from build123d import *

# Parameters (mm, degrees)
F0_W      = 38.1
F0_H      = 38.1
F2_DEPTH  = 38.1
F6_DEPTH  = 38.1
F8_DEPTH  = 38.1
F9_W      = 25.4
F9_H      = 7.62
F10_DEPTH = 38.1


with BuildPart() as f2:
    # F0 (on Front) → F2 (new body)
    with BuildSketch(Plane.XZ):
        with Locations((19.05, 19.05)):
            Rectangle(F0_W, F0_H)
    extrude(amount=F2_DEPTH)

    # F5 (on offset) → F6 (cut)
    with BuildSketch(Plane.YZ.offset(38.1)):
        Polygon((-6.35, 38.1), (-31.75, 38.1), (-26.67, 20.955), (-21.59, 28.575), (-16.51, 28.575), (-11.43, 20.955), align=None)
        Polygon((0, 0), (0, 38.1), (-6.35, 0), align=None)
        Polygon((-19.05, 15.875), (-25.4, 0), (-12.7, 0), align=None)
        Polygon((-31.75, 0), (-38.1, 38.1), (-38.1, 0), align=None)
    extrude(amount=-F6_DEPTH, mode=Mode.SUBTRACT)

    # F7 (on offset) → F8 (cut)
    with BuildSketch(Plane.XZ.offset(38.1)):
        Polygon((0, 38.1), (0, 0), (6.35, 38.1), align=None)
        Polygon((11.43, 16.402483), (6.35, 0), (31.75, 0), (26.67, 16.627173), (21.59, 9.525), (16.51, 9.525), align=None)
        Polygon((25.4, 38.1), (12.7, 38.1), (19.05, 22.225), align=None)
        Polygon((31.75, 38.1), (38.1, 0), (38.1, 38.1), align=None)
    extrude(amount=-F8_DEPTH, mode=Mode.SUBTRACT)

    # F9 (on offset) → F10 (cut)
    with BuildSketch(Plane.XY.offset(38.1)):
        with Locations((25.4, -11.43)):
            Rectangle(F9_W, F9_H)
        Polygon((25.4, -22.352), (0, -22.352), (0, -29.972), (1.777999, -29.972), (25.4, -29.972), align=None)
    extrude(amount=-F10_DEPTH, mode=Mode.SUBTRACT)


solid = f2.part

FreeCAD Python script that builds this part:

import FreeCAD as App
import Part
import Sketcher
from FreeCAD import Vector
Q = App.Units.Quantity


def add_polygon(sketch, points):
    """Adds a closed chain of lines whose ends are joined by coincident constraints."""
    first, n = sketch.GeometryCount, len(points)
    for a, b in zip(points, points[1:] + points[:1]):
        sketch.addGeometry(Part.LineSegment(App.Vector(*a, 0), App.Vector(*b, 0)), False)
    for i in range(n):
        sketch.addConstraint(Sketcher.Constraint("Coincident", first + i, 2, first + (i + 1) % n, 1))

doc = App.newDocument("Part")
body = doc.addObject("PartDesign::Body", "Body")

sketch1 = body.newObject("Sketcher::SketchObject", "Sketch")
sketch1.AttachmentSupport = (doc.getObject("XZ_Plane"), [""])
sketch1.MapMode = "FlatFace"
add_polygon(sketch1, [(0, 38), (0, 0), (38, 0), (38, 38)])
sketch1.addConstraint([
    Sketcher.Constraint("Vertical", 0),
    Sketcher.Constraint("Horizontal", 1),
    Sketcher.Constraint("Vertical", 2),
    Sketcher.Constraint("Horizontal", 3),
    Sketcher.Constraint("Coincident", 0, 2, -1, 1),
    Sketcher.Constraint("Equal", 3, 0),
    Sketcher.Constraint("DistanceX", 1, 1, 1, 2, Q("1.5 in")),
])
pad1 = body.newObject("PartDesign::Pad", "Pad")
pad1.Profile = sketch1
pad1.Length = Q("1.5 in")

sketch2 = body.newObject("Sketcher::SketchObject", "Sketch001")
sketch2.AttachmentSupport = (doc.getObject("YZ_Plane"), [""])
sketch2.MapMode = "FlatFace"
sketch2.AttachmentOffset = App.Placement(Vector(0, 0, 1.5 * 25.4), App.Rotation())
add_polygon(sketch2, [(-6, 38), (-32, 38), (-27, 21), (-22, 29), (-17, 29), (-11, 21)])
add_polygon(sketch2, [(0, 0), (0, 38), (-6, 0)])
add_polygon(sketch2, [(-19, 16), (-25, 0), (-13, 0)])
add_polygon(sketch2, [(-32, 0), (-38, 38), (-38, 0)])
sketch2.addConstraint([
    Sketcher.Constraint("Horizontal", 0),
    Sketcher.Constraint("Horizontal", 3),
    Sketcher.Constraint("Vertical", 6),
    Sketcher.Constraint("Horizontal", 8),
    Sketcher.Constraint("Horizontal", 10),
    Sketcher.Constraint("Vertical", 13),
    Sketcher.Constraint("Horizontal", 14),
    Sketcher.Constraint("Coincident", 8, 2, -1, 1),
    Sketcher.Constraint("PointOnObject", 9, 2, -1),
    Sketcher.Constraint("PointOnObject", 13, 2, -1),
    Sketcher.Constraint("Horizontal", 1, 2, 4, 2),
    Sketcher.Constraint("Horizontal", 5, 2, 6, 2),
    Sketcher.Constraint("Horizontal", 6, 2, 12, 2),
    Sketcher.Constraint("Vertical", 5, 2, 7, 2),
    Sketcher.Constraint("Vertical", 0, 2, 14, 2),
    Sketcher.Constraint("Equal", 8, 14),
    Sketcher.Constraint("Equal", 2, 4),
    Sketcher.Constraint("Equal", 1, 5),
    Sketcher.Constraint("Equal", 9, 11),
    Sketcher.Constraint("DistanceX", 0, 2, 0, 1, Q("1 in")),
    Sketcher.Constraint("DistanceX", 3, 1, 3, 2, Q("0.2 in")),
    Sketcher.Constraint("DistanceX", 10, 1, 10, 2, Q("0.5 in")),
    Sketcher.Constraint("DistanceY", 6, 1, 6, 2, Q("1.5 in")),
    Sketcher.Constraint("DistanceX", 9, 2, -1, 1, Q("1 in")),
    Sketcher.Constraint("DistanceX", 13, 2, 10, 2, Q("1 in")),
    Sketcher.Constraint("DistanceX", 0, 2, 1, 2, Q("0.2 in")),
    Sketcher.Constraint("DistanceY", 1, 2, 2, 2, Q("0.3 in")),
    Sketcher.Constraint("DistanceY", 11, 2, 1, 2, Q("0.2 in")),
    Sketcher.Constraint("DistanceY", -1, 1, 1, 2, Q("0.825 in")),
])
pocket1 = body.newObject("PartDesign::Pocket", "Pocket")
pocket1.Profile = sketch2
pocket1.Length = Q("1.5 in")

sketch3 = body.newObject("Sketcher::SketchObject", "Sketch002")
sketch3.AttachmentSupport = (doc.getObject("XZ_Plane"), [""])
sketch3.MapMode = "FlatFace"
sketch3.AttachmentOffset = App.Placement(Vector(0, 0, 1.5 * 25.4), App.Rotation())
add_polygon(sketch3, [(0, 38), (0, 0), (6, 38)])
add_polygon(sketch3, [(11, 16), (6, 0), (32, 0), (27, 17), (22, 10), (17, 10)])
add_polygon(sketch3, [(25, 38), (13, 38), (19, 22)])
add_polygon(sketch3, [(32, 38), (38, 0), (38, 38)])
sketch3.addConstraint([
    Sketcher.Constraint("Vertical", 0),
    Sketcher.Constraint("Horizontal", 2),
    Sketcher.Constraint("Horizontal", 4),
    Sketcher.Constraint("Horizontal", 7),
    Sketcher.Constraint("Horizontal", 9),
    Sketcher.Constraint("Vertical", 13),
    Sketcher.Constraint("Horizontal", 14),
    Sketcher.Constraint("Coincident", 0, 2, -1, 1),
    Sketcher.Constraint("PointOnObject", 3, 2, -1),
    Sketcher.Constraint("PointOnObject", 12, 2, -1),
    Sketcher.Constraint("Horizontal", 2, 2, 9, 2),
    Sketcher.Constraint("Horizontal", 11, 2, 13, 2),
    Sketcher.Constraint("Vertical", 1, 2, 3, 2),
    Sketcher.Constraint("Vertical", 4, 2, 14, 2),
    Sketcher.Constraint("Equal", 2, 14),
    Sketcher.Constraint("Equal", 10, 11),
    Sketcher.Constraint("DistanceX", 4, 1, 4, 2, Q("1 in")),
    Sketcher.Constraint("DistanceX", 7, 2, 7, 1, Q("0.2 in")),
    Sketcher.Constraint("DistanceX", 9, 2, 9, 1, Q("0.5 in")),
    Sketcher.Constraint("DistanceY", 0, 2, 0, 1, Q("1.5 in")),
    Sketcher.Constraint("DistanceX", -1, 1, 11, 2, Q("1 in")),
    Sketcher.Constraint("DistanceX", 9, 2, 13, 2, Q("1 in")),
    Sketcher.Constraint("DistanceX", 5, 2, 4, 2, Q("0.2 in")),
    Sketcher.Constraint("DistanceX", 6, 2, 5, 2, Q("0.2 in")),
    Sketcher.Constraint("DistanceX", 8, 2, 7, 2, Q("0.2 in")),
    Sketcher.Constraint("DistanceY", 6, 2, 10, 2, Q("0.5 in")),
    Sketcher.Constraint("DistanceY", -1, 1, 6, 2, Q("0.375 in")),
    Sketcher.Constraint("DistanceY", 8, 2, 5, 2, 0.22469),
    Sketcher.Constraint("Distance", 3, 17.171134),
])
pocket2 = body.newObject("PartDesign::Pocket", "Pocket001")
pocket2.Profile = sketch3
pocket2.Length = Q("1.5 in")

sketch4 = body.newObject("Sketcher::SketchObject", "Sketch003")
sketch4.AttachmentSupport = (doc.getObject("XY_Plane"), [""])
sketch4.MapMode = "FlatFace"
sketch4.AttachmentOffset = App.Placement(Vector(0, 0, 1.5 * 25.4), App.Rotation())
add_polygon(sketch4, [(13, -8), (13, -15), (38, -15), (38, -8)])
add_polygon(sketch4, [(25, -22), (0, -22), (0, -30), (25, -30)])
sketch4.addConstraint([
    Sketcher.Constraint("Vertical", 0),
    Sketcher.Constraint("Horizontal", 1),
    Sketcher.Constraint("Vertical", 2),
    Sketcher.Constraint("Horizontal", 3),
    Sketcher.Constraint("Horizontal", 4),
    Sketcher.Constraint("Vertical", 5),
    Sketcher.Constraint("Horizontal", 6),
    Sketcher.Constraint("Vertical", 7),
    Sketcher.Constraint("PointOnObject", 4, 2, -2),
    Sketcher.Constraint("Equal", 3, 4),
    Sketcher.Constraint("Equal", 2, 5),
    Sketcher.Constraint("DistanceX", 1, 1, 1, 2, Q("1 in")),
    Sketcher.Constraint("DistanceY", 0, 2, 0, 1, Q("0.3 in")),
    Sketcher.Constraint("DistanceX", -1, 1, 0, 2, Q("0.5 in")),
    Sketcher.Constraint("DistanceY", 0, 2, -1, 1, Q("0.6 in")),
    Sketcher.Constraint("DistanceY", 4, 2, -1, 1, Q("0.88 in")),
])
pocket3 = body.newObject("PartDesign::Pocket", "Pocket002")
pocket3.Profile = sketch4
pocket3.Length = Q("1.5 in")

doc.recompute()
